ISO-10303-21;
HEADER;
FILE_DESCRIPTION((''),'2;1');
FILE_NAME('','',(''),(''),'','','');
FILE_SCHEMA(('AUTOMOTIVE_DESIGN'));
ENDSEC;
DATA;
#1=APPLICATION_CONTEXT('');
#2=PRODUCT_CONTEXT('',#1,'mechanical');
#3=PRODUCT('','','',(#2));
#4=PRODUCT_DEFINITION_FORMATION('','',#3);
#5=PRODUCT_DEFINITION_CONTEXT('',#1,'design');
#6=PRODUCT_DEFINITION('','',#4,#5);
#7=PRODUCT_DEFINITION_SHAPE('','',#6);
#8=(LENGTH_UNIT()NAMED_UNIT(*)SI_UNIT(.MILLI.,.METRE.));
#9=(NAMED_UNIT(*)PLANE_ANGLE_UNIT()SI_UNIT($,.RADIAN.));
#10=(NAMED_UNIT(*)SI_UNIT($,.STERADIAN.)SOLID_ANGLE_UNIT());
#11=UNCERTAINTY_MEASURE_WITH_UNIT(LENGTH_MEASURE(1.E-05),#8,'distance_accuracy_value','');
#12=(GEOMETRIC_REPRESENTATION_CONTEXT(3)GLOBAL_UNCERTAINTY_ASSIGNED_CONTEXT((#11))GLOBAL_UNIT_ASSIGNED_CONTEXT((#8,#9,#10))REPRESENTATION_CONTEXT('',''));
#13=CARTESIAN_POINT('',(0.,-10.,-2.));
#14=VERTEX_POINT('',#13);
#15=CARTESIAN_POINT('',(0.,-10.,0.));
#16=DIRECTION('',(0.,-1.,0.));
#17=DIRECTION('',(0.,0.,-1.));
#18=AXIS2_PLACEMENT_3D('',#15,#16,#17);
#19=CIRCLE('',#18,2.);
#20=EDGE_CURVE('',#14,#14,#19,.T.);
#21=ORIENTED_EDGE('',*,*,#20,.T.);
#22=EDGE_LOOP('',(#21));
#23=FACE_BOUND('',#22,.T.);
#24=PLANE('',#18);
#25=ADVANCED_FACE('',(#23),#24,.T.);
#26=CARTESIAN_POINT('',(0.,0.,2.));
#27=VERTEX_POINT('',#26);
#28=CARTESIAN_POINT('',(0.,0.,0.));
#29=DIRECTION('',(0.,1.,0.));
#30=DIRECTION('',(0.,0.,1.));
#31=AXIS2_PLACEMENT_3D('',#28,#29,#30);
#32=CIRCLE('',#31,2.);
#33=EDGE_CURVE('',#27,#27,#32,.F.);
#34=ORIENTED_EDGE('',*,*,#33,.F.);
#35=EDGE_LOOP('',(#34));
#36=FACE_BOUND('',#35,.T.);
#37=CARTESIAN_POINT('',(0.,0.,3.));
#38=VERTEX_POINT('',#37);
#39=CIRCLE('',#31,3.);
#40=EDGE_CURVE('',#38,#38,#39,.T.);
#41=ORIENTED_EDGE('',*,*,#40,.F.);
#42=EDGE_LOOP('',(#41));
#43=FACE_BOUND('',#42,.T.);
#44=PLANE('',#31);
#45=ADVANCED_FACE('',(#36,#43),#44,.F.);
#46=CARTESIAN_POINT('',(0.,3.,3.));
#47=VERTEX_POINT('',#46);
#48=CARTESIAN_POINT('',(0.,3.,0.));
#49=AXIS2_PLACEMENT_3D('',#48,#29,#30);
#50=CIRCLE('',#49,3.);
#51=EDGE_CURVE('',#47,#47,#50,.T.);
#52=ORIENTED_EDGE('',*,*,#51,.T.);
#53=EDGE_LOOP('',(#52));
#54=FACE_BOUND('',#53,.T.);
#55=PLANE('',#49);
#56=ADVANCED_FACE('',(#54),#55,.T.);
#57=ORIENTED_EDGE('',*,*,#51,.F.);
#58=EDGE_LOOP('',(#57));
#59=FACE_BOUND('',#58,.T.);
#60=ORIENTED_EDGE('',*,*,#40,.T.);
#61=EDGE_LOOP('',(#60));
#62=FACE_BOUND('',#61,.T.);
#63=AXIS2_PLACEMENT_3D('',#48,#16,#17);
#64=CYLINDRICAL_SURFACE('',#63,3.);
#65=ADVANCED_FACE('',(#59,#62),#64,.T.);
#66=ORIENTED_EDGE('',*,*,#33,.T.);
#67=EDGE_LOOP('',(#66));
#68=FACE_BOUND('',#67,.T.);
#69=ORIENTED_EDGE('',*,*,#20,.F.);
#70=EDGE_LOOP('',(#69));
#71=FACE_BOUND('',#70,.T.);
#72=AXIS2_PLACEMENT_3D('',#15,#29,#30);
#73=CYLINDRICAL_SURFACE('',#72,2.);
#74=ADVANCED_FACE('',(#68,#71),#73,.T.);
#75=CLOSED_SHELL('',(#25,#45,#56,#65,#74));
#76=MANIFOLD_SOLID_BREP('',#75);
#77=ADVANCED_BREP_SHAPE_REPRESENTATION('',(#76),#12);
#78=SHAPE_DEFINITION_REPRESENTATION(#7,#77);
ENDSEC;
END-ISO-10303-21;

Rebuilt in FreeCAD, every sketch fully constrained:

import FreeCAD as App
import Part
import Sketcher
from FreeCAD import Vector
Q = App.Units.Quantity

doc = App.newDocument("Part")
params = doc.addObject("Spreadsheet::Sheet", "Params")
for row, (alias, value) in enumerate([
    ("sketch1_diameter", "6 mm"),
    ("pad1_length", "3 mm"),
    ("sketch2_diameter", "4 mm"),
    ("pad2_length", "10 mm"),
], start=1):
    params.set(f"A{row}", alias)
    params.set(f"B{row}", "=" + value)
    params.setAlias(f"B{row}", alias)

body = doc.addObject("PartDesign::Body", "Body")

sketch1 = body.newObject("Sketcher::SketchObject", "Sketch")
sketch1.AttachmentSupport = (doc.getObject("XZ_Plane"), [""])
sketch1.MapMode = "FlatFace"
sketch1.addGeometry(Part.Circle(Vector(0, 0, 0), Vector(0, 0, 1), 3), False)
sketch1.addConstraint(Sketcher.Constraint("Coincident", 0, 3, -1, 1))
sketch1.addConstraint(Sketcher.Constraint("Diameter", 0, Q("6 mm")))
sketch1.setExpression("Constraints[1]", "Params.sketch1_diameter")
pad1 = body.newObject("PartDesign::Pad", "Pad")
pad1.Profile = sketch1
pad1.setExpression("Length", "Params.pad1_length")
pad1.Reversed = True

sketch2 = body.newObject("Sketcher::SketchObject", "Sketch001")
sketch2.AttachmentSupport = (doc.getObject("XZ_Plane"), [""])
sketch2.MapMode = "FlatFace"
sketch2.addGeometry(Part.Circle(Vector(0, 0, 0), Vector(0, 0, 1), 2), False)
sketch2.addConstraint(Sketcher.Constraint("Coincident", 0, 3, -1, 1))
sketch2.addConstraint(Sketcher.Constraint("Diameter", 0, Q("4 mm")))
sketch2.setExpression("Constraints[1]", "Params.sketch2_diameter")
pad2 = body.newObject("PartDesign::Pad", "Pad001")
pad2.Profile = sketch2
pad2.setExpression("Length", "Params.pad2_length")

doc.recompute()
